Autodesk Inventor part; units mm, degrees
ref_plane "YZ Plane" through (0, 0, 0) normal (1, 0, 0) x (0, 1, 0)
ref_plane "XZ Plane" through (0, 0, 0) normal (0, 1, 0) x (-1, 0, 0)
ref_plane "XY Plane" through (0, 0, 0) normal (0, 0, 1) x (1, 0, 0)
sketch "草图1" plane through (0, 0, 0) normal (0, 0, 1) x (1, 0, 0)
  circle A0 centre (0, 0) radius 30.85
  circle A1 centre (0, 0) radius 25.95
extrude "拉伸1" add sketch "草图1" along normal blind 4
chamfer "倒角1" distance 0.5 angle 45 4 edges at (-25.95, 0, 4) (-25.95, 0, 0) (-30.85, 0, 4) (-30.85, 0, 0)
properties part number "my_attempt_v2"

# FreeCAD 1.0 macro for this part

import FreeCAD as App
import Part
import Sketcher
from FreeCAD import Vector
Q = App.Units.Quantity


def edges_at(feature, points):
    """Names of the edges that pass closest to the given points."""
    edges = feature.Shape.Edges
    near = lambda p: min(range(len(edges)), key=lambda i: edges[i].distToShape(Part.Vertex(*p))[0])
    return sorted({f"Edge{near(p) + 1}" for p in points})

doc = App.newDocument("Part")
body = doc.addObject("PartDesign::Body", "Body")

# Sketch on XY plane
sketch1 = doc.addObject("Sketcher::SketchObject", "Sketch")
body.addObject(sketch1)
sketch1.AttachmentSupport = (doc.XY_Plane, [""])
sketch1.MapMode = "FlatFace"
sketch1.addGeometry([
    Part.Circle(Vector(0, 0, 0), Vector(0, 0, 1), 31),
    Part.Circle(Vector(0, 0, 0), Vector(0, 0, 1), 26),
], False)
sketch1.addConstraint([
    Sketcher.Constraint("Coincident", 0, 3, -1, 1),
    Sketcher.Constraint("Coincident", 1, 3, -1, 1),
    Sketcher.Constraint("Diameter", 0, Q("61.7 mm")),
    Sketcher.Constraint("Diameter", 1, Q("51.9 mm")),
])
pad1 = doc.addObject("PartDesign::Pad", "Pad")
body.addObject(pad1)
pad1.Profile = sketch1
pad1.Length = 4
doc.recompute()

chamfer = doc.addObject("PartDesign::Chamfer", "Chamfer")
body.addObject(chamfer)
chamfer.Base = (pad1, edges_at(pad1, [
    (-25.95, 0, 4),
    (-25.95, 0, 0),
    (-30.85, 0, 4),
    (-30.85, 0, 0),
]))
chamfer.Size = 0.5

doc.recompute()
